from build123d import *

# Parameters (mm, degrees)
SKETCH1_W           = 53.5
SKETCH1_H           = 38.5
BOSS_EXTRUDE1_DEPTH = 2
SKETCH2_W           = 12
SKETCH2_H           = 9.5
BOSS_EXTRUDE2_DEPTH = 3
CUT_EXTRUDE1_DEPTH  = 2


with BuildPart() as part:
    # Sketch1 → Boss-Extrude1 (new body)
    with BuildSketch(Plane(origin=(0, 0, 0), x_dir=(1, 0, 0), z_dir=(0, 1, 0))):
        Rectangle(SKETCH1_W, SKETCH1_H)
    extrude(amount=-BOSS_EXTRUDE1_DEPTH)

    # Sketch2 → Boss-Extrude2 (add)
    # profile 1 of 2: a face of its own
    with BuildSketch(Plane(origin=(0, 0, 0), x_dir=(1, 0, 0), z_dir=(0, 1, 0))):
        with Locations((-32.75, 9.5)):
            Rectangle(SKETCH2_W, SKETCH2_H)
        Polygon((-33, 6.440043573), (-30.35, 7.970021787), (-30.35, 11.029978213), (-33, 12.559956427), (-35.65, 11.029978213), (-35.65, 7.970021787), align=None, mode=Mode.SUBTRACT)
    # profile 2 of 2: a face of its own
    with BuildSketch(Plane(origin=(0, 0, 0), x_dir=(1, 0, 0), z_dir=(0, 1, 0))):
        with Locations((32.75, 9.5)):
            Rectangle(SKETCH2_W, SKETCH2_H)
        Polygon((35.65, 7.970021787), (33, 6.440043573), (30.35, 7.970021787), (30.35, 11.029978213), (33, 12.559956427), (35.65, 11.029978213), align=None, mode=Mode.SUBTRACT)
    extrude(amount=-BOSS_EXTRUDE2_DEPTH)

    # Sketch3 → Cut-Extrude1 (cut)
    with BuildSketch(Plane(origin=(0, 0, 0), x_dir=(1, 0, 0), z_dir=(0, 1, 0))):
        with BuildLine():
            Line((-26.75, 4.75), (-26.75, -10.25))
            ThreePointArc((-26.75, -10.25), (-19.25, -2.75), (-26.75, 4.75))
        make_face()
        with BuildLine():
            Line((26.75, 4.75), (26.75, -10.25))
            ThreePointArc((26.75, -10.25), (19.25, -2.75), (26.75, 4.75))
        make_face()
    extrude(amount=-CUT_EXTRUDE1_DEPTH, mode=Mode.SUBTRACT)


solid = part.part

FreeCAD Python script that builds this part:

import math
import FreeCAD as App
import Part
import Sketcher
Q = App.Units.Quantity


def add_polygon(sketch, points):
    """Adds a closed chain of lines whose ends are joined by coincident constraints."""
    first, n = sketch.GeometryCount, len(points)
    for a, b in zip(points, points[1:] + points[:1]):
        sketch.addGeometry(Part.LineSegment(App.Vector(*a, 0), App.Vector(*b, 0)), False)
    for i in range(n):
        sketch.addConstraint(Sketcher.Constraint("Coincident", first + i, 2, first + (i + 1) % n, 1))

doc = App.newDocument("Part")
body = doc.addObject("PartDesign::Body", "Body")

# Sketch on XZ plane
sketch1 = body.newObject("Sketcher::SketchObject", "Sketch")
sketch1.AttachmentSupport = (doc.getObject("XZ_Plane"), [""])
sketch1.MapMode = "FlatFace"
add_polygon(sketch1, [(-26.75, -19.25), (-26.75, 19.25), (26.75, 19.25), (26.75, -19.25)])  # lines 0-3
sketch1.addConstraint([
    Sketcher.Constraint("Vertical", 0),
    Sketcher.Constraint("Horizontal", 1),
    Sketcher.Constraint("Vertical", 2),
    Sketcher.Constraint("Horizontal", 3),
    Sketcher.Constraint("Symmetric", 0, 2, 2, 2, -1, 1),
    Sketcher.Constraint("DistanceX", 1, 1, 1, 2, Q("53.5 mm")),
    Sketcher.Constraint("DistanceY", 0, 1, 0, 2, Q("38.5 mm")),
])
pad1 = body.newObject("PartDesign::Pad", "Pad")
pad1.Profile = sketch1
pad1.Length = 2

# Sketch on XZ plane
sketch2 = body.newObject("Sketcher::SketchObject", "Sketch001")
sketch2.AttachmentSupport = (doc.getObject("XZ_Plane"), [""])
sketch2.MapMode = "FlatFace"
add_polygon(sketch2, [(-38.75, -14.25), (-38.75, -4.75), (-26.75, -4.75), (-26.75, -14.25)])  # lines 0-3
add_polygon(sketch2, [(-30.35, -7.970022), (-33, -6.440044), (-35.65, -7.970022), (-35.65, -11.029978), (-33, -12.559956), (-30.35, -11.029978)])  # lines 4-9
add_polygon(sketch2, [(26.75, -14.25), (26.75, -4.75), (38.75, -4.75), (38.75, -14.25)])  # lines 10-13
add_polygon(sketch2, [(35.65, -11.029978), (35.65, -7.970022), (33, -6.440044), (30.35, -7.970022), (30.35, -11.029978), (33, -12.559956)])  # lines 14-19
sketch2.addConstraint([
    Sketcher.Constraint("Vertical", 0),
    Sketcher.Constraint("Horizontal", 1),
    Sketcher.Constraint("Vertical", 2),
    Sketcher.Constraint("Horizontal", 3),
    Sketcher.Constraint("Vertical", 6),
    Sketcher.Constraint("Vertical", 9),
    Sketcher.Constraint("Vertical", 10),
    Sketcher.Constraint("Horizontal", 11),
    Sketcher.Constraint("Vertical", 12),
    Sketcher.Constraint("Horizontal", 13),
    Sketcher.Constraint("Vertical", 14),
    Sketcher.Constraint("Vertical", 17),
    Sketcher.Constraint("Symmetric", 1, 2, 10, 2, -2),
    Sketcher.Constraint("Symmetric", 3, 2, 12, 2, -2),
    Sketcher.Constraint("Symmetric", 5, 2, 14, 2, -2),
    Sketcher.Constraint("Symmetric", 4, 2, 15, 2, -2),
    Sketcher.Constraint("Symmetric", 9, 2, 16, 2, -2),
    Sketcher.Constraint("Symmetric", 7, 2, 18, 2, -2),
    Sketcher.Constraint("Parallel", 4, 7),
    Sketcher.Constraint("Parallel", 5, 8),
    Sketcher.Constraint("Parallel", 7, 15),
    Sketcher.Constraint("Parallel", 15, 18),
    Sketcher.Constraint("Parallel", 16, 19),
    Sketcher.Constraint("Horizontal", 6, 2, 8, 2),
    Sketcher.Constraint("Horizontal", 5, 2, 9, 2),
    Sketcher.Constraint("DistanceX", 1, 1, 1, 2, Q("12 mm")),
    Sketcher.Constraint("Angle", 4, Q("150 deg")),
    Sketcher.Constraint("DistanceY", 0, 1, 0, 2, Q("9.5 mm")),
    Sketcher.Constraint("DistanceX", 4, 2, -1, 1, Q("33 mm")),
    Sketcher.Constraint("DistanceX", 0, 2, 5, 2, Q("3.1 mm")),
    Sketcher.Constraint("DistanceX", 8, 2, 2, 2, Q("3.6 mm")),
    Sketcher.Constraint("DistanceY", 0, 2, -1, 1, Q("4.75 mm")),
    Sketcher.Constraint("DistanceY", 6, 2, 6, 1, Q("3.059956 mm")),
    Sketcher.Constraint("DistanceY", 5, 2, -1, 1, Q("7.970022 mm")),
])
pad2 = body.newObject("PartDesign::Pad", "Pad001")
pad2.Profile = sketch2
pad2.Length = 3

# Sketch on XZ plane
sketch3 = body.newObject("Sketcher::SketchObject", "Sketch002")
sketch3.AttachmentSupport = (doc.getObject("XZ_Plane"), [""])
sketch3.MapMode = "FlatFace"
sketch3.addGeometry([
    Part.LineSegment(App.Vector(-26.75, -4.75, 0), App.Vector(-26.75, 10.25, 0)),
    Part.ArcOfCircle(Part.Circle(App.Vector(-26.75, 2.75, 0), App.Vector(0, 0, 1), 7.5), math.radians(-90), math.radians(90)),
    Part.LineSegment(App.Vector(26.75, 10.25, 0), App.Vector(26.75, -4.75, 0)),
    Part.ArcOfCircle(Part.Circle(App.Vector(26.75, 2.75, 0), App.Vector(0, 0, 1), 7.5), math.radians(90), math.radians(270)),
], False)
sketch3.addConstraint([
    Sketcher.Constraint("Coincident", 0, 1, 1, 1),
    Sketcher.Constraint("Coincident", 1, 2, 0, 2),
    Sketcher.Constraint("Coincident", 2, 1, 3, 1),
    Sketcher.Constraint("Coincident", 3, 2, 2, 2),
    Sketcher.Constraint("Vertical", 0),
    Sketcher.Constraint("Vertical", 2),
    Sketcher.Constraint("Equal", 1, 3),
    Sketcher.Constraint("Symmetric", 1, 3, 3, 3, -2),
    Sketcher.Constraint("Vertical", 1, 3, 0, 1),
    Sketcher.Constraint("Vertical", 3, 3, 2, 1),
    Sketcher.Constraint("Radius", 1, Q("7.5 mm")),
    Sketcher.Constraint("DistanceX", 1, 3, 3, 3, Q("53.5 mm")),
    Sketcher.Constraint("DistanceY", -1, 1, 1, 3, Q("2.75 mm")),
])
pocket1 = body.newObject("PartDesign::Pocket", "Pocket")
pocket1.Profile = sketch3
pocket1.Length = 2
pocket1.Reversed = True

doc.recompute()
